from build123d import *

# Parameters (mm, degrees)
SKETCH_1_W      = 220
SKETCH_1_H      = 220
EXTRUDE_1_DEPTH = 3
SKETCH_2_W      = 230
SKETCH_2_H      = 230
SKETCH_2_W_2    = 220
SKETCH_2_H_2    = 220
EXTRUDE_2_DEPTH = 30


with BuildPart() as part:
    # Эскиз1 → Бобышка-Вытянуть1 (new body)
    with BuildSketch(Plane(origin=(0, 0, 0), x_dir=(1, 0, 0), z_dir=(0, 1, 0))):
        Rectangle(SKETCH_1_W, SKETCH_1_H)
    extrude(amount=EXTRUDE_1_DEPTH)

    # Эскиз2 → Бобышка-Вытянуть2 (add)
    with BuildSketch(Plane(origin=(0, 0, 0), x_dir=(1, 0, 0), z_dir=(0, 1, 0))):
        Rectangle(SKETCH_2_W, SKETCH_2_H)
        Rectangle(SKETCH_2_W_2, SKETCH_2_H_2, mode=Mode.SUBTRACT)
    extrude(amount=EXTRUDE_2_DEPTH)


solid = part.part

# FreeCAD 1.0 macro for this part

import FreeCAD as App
import Part
import Sketcher


def add_polygon(sketch, points):
    """Adds a closed chain of lines whose ends are joined by coincident constraints."""
    first, n = sketch.GeometryCount, len(points)
    for a, b in zip(points, points[1:] + points[:1]):
        sketch.addGeometry(Part.LineSegment(App.Vector(*a, 0), App.Vector(*b, 0)), False)
    for i in range(n):
        sketch.addConstraint(Sketcher.Constraint("Coincident", first + i, 2, first + (i + 1) % n, 1))

doc = App.newDocument("Part")
body = doc.addObject("PartDesign::Body", "Body")

sketch1 = body.newObject("Sketcher::SketchObject", "Sketch")
sketch1.AttachmentSupport = (doc.getObject("XZ_Plane"), [""])
sketch1.MapMode = "FlatFace"
add_polygon(sketch1, [(-110, -110), (-110, 110), (110, 110), (110, -110)])
sketch1.addConstraint(Sketcher.Constraint("Vertical", 0))
sketch1.addConstraint(Sketcher.Constraint("Horizontal", 1))
sketch1.addConstraint(Sketcher.Constraint("Vertical", 2))
sketch1.addConstraint(Sketcher.Constraint("Horizontal", 3))
sketch1.addConstraint(Sketcher.Constraint("Symmetric", 0, 2, 2, 2, -1, 1))
sketch1.addConstraint(Sketcher.Constraint("Equal", 3, 0))
sketch1.addConstraint(Sketcher.Constraint("DistanceX", 1, 1, 1, 2, 220.0))
pad1 = body.newObject("PartDesign::Pad", "Pad")
pad1.Profile = sketch1
pad1.Length = 3
pad1.Reversed = True

sketch2 = body.newObject("Sketcher::SketchObject", "Sketch001")
sketch2.AttachmentSupport = (doc.getObject("XZ_Plane"), [""])
sketch2.MapMode = "FlatFace"
add_polygon(sketch2, [(-115, -115), (-115, 115), (115, 115), (115, -115)])
add_polygon(sketch2, [(110, 110), (-110, 110), (-110, -110), (110, -110)])
sketch2.addConstraint(Sketcher.Constraint("Vertical", 0))
sketch2.addConstraint(Sketcher.Constraint("Horizontal", 1))
sketch2.addConstraint(Sketcher.Constraint("Vertical", 2))
sketch2.addConstraint(Sketcher.Constraint("Horizontal", 3))
sketch2.addConstraint(Sketcher.Constraint("Horizontal", 4))
sketch2.addConstraint(Sketcher.Constraint("Vertical", 5))
sketch2.addConstraint(Sketcher.Constraint("Horizontal", 6))
sketch2.addConstraint(Sketcher.Constraint("Vertical", 7))
sketch2.addConstraint(Sketcher.Constraint("Symmetric", 0, 2, 2, 2, -1, 1))
sketch2.addConstraint(Sketcher.Constraint("Symmetric", 4, 2, 6, 2, -1, 1))
sketch2.addConstraint(Sketcher.Constraint("Equal", 3, 0))
sketch2.addConstraint(Sketcher.Constraint("Equal", 6, 5))
sketch2.addConstraint(Sketcher.Constraint("DistanceX", 1, 1, 1, 2, 230.0))
sketch2.addConstraint(Sketcher.Constraint("DistanceX", 4, 2, 4, 1, 220.0))
pad2 = body.newObject("PartDesign::Pad", "Pad001")
pad2.Profile = sketch2
pad2.Length = 30
pad2.Reversed = True

doc.recompute()
